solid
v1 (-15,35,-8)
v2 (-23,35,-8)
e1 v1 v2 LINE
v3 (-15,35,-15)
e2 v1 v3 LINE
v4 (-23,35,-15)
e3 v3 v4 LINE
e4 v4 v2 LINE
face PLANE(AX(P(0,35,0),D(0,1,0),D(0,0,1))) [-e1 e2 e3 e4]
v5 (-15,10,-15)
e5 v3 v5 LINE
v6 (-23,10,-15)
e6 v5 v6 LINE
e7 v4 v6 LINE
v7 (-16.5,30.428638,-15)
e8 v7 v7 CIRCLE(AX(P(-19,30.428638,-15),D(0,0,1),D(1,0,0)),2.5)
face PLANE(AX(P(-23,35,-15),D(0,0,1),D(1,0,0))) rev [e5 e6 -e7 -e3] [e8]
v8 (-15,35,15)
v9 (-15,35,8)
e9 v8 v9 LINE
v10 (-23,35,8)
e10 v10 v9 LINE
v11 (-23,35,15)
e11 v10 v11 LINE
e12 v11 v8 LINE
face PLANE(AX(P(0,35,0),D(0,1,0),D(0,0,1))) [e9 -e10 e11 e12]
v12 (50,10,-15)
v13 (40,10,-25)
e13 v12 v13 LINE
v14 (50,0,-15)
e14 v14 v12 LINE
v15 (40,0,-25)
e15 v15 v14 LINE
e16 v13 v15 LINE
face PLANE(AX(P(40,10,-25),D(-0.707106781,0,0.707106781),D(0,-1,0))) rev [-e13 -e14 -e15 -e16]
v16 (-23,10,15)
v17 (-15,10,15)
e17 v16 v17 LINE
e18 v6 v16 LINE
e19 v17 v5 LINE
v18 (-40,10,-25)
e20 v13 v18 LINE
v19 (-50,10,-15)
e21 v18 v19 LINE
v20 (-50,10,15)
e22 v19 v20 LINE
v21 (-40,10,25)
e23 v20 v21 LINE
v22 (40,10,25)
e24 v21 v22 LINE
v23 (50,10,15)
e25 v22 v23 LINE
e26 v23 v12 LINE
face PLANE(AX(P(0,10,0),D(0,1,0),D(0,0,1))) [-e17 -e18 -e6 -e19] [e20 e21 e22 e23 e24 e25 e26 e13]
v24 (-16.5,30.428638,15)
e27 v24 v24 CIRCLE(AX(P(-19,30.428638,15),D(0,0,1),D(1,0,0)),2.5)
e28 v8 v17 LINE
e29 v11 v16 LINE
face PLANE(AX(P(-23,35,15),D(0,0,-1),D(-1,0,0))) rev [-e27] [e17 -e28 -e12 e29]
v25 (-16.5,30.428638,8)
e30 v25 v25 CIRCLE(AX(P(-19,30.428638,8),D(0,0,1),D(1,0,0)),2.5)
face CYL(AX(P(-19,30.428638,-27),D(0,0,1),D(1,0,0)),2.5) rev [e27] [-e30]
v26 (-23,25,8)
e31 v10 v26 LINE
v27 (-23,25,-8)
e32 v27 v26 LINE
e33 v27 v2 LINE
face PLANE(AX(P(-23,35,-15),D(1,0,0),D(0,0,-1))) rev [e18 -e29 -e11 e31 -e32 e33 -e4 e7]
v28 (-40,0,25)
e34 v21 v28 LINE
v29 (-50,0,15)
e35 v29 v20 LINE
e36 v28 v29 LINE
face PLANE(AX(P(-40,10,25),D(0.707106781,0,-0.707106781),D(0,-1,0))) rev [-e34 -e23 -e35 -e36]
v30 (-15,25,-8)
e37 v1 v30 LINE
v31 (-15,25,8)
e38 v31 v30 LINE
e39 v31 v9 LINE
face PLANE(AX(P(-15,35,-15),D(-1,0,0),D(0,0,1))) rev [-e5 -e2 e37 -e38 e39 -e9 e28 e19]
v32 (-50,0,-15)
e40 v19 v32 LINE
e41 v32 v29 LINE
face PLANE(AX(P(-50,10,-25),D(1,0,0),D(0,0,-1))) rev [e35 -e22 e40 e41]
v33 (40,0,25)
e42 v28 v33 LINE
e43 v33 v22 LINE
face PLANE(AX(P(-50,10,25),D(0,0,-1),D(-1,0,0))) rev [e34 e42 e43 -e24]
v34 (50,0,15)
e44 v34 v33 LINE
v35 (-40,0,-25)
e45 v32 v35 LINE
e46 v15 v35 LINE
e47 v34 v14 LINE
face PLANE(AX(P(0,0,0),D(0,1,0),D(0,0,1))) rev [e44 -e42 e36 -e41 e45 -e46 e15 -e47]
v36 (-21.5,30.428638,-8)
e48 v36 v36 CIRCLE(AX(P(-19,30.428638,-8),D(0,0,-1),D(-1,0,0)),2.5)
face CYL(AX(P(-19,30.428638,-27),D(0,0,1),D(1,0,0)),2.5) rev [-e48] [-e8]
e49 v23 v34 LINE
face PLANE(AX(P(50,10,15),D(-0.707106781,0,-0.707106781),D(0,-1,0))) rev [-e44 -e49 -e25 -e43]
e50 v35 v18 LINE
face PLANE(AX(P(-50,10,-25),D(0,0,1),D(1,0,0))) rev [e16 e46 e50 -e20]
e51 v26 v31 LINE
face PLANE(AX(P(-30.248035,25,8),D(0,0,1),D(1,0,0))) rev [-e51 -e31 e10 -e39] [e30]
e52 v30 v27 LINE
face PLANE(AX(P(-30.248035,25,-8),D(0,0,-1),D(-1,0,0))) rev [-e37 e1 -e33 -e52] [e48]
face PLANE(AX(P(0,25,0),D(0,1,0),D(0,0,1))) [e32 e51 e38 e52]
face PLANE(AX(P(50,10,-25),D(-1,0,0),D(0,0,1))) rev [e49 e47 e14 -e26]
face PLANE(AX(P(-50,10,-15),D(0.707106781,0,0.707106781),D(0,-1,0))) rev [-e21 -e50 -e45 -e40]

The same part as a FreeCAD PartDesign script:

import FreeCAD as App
import Part
import Sketcher
from FreeCAD import Vector
Q = App.Units.Quantity


def edges_at(feature, points):
    """Names of the edges that pass closest to the given points."""
    edges = feature.Shape.Edges
    near = lambda p: min(range(len(edges)), key=lambda i: edges[i].distToShape(Part.Vertex(*p))[0])
    return sorted({f"Edge{near(p) + 1}" for p in points})

doc = App.newDocument("Part")
body = doc.addObject("PartDesign::Body", "Body")

# Sketch on XZ plane
sketch1 = body.newObject("Sketcher::SketchObject", "Sketch")
sketch1.AttachmentSupport = (doc.getObject("XZ_Plane"), [""])
sketch1.MapMode = "FlatFace"
sketch1.addGeometry([
    Part.LineSegment(Vector(-50, -25, 0), Vector(-50, 25, 0)),
    Part.LineSegment(Vector(-50, 25, 0), Vector(50, 25, 0)),
    Part.LineSegment(Vector(50, 25, 0), Vector(50, -25, 0)),
    Part.LineSegment(Vector(50, -25, 0), Vector(-50, -25, 0)),
], False)
sketch1.addConstraint([
    Sketcher.Constraint("Coincident", 0, 2, 1, 1),
    Sketcher.Constraint("Coincident", 1, 2, 2, 1),
    Sketcher.Constraint("Coincident", 2, 2, 3, 1),
    Sketcher.Constraint("Coincident", 3, 2, 0, 1),
    Sketcher.Constraint("Vertical", 0),
    Sketcher.Constraint("Horizontal", 1),
    Sketcher.Constraint("Vertical", 2),
    Sketcher.Constraint("Horizontal", 3),
    Sketcher.Constraint("Symmetric", 0, 2, 2, 2, -1, 1),
    Sketcher.Constraint("DistanceX", 1, 1, 1, 2, Q("100 mm")),
    Sketcher.Constraint("DistanceY", 0, 1, 0, 2, Q("50 mm")),
])
pad1 = body.newObject("PartDesign::Pad", "Pad")
pad1.Profile = sketch1
pad1.Length = 10
pad1.Reversed = True
doc.recompute()

chamfer = body.newObject("PartDesign::Chamfer", "Chamfer")
chamfer.Base = (pad1, edges_at(pad1, [
    (-50, 5, -25),
    (50, 5, -25),
    (50, 5, 25),
    (-50, 5, 25),
]))
chamfer.Size = 10

# Sketch on XZ plane
sketch2 = body.newObject("Sketcher::SketchObject", "Sketch001")
sketch2.AttachmentSupport = (doc.getObject("XZ_Plane"), [""])
sketch2.MapMode = "FlatFace"
sketch2.AttachmentOffset = App.Placement(Vector(0, 0, -10), App.Rotation())
sketch2.addGeometry([
    Part.LineSegment(Vector(-23, -15, 0), Vector(-23, 15, 0)),
    Part.LineSegment(Vector(-23, 15, 0), Vector(-15, 15, 0)),
    Part.LineSegment(Vector(-15, 15, 0), Vector(-15, -15, 0)),
    Part.LineSegment(Vector(-15, -15, 0), Vector(-23, -15, 0)),
], False)
sketch2.addConstraint([
    Sketcher.Constraint("Coincident", 0, 2, 1, 1),
    Sketcher.Constraint("Coincident", 1, 2, 2, 1),
    Sketcher.Constraint("Coincident", 2, 2, 3, 1),
    Sketcher.Constraint("Coincident", 3, 2, 0, 1),
    Sketcher.Constraint("Vertical", 0),
    Sketcher.Constraint("Horizontal", 1),
    Sketcher.Constraint("Vertical", 2),
    Sketcher.Constraint("Horizontal", 3),
    Sketcher.Constraint("DistanceX", 1, 1, 1, 2, Q("8 mm")),
    Sketcher.Constraint("DistanceY", 0, 1, 0, 2, Q("30 mm")),
    Sketcher.Constraint("DistanceX", 0, 2, -1, 1, Q("23 mm")),
    Sketcher.Constraint("DistanceY", -1, 1, 0, 2, Q("15 mm")),
])
pad2 = body.newObject("PartDesign::Pad", "Pad001")
pad2.Profile = sketch2
pad2.Length = 25
pad2.Reversed = True

# Sketch on XZ plane
sketch3 = body.newObject("Sketcher::SketchObject", "Sketch002")
sketch3.AttachmentSupport = (doc.getObject("XZ_Plane"), [""])
sketch3.MapMode = "FlatFace"
sketch3.AttachmentOffset = App.Placement(Vector(0, 0, -35), App.Rotation())
sketch3.addGeometry([
    Part.LineSegment(Vector(-30.248035, -8, 0), Vector(-30.248035, 8, 0)),
    Part.LineSegment(Vector(-30.248035, 8, 0), Vector(-5.922692, 8, 0)),
    Part.LineSegment(Vector(-5.922692, 8, 0), Vector(-5.922692, -8, 0)),
    Part.LineSegment(Vector(-5.922692, -8, 0), Vector(-30.248035, -8, 0)),
], False)
sketch3.addConstraint([
    Sketcher.Constraint("Coincident", 0, 2, 1, 1),
    Sketcher.Constraint("Coincident", 1, 2, 2, 1),
    Sketcher.Constraint("Coincident", 2, 2, 3, 1),
    Sketcher.Constraint("Coincident", 3, 2, 0, 1),
    Sketcher.Constraint("Vertical", 0),
    Sketcher.Constraint("Horizontal", 1),
    Sketcher.Constraint("Vertical", 2),
    Sketcher.Constraint("Horizontal", 3),
    Sketcher.Constraint("DistanceY", 0, 1, 0, 2, Q("16 mm")),
    Sketcher.Constraint("DistanceY", -1, 1, 0, 2, Q("8 mm")),
    Sketcher.Constraint("DistanceX", 1, 1, 1, 2, Q("24.325343 mm")),
    Sketcher.Constraint("DistanceX", 0, 2, -1, 1, Q("30.248035 mm")),
])
pocket1 = body.newObject("PartDesign::Pocket", "Pocket")
pocket1.Profile = sketch3
pocket1.Length = 10
pocket1.Reversed = True

# Sketch on XY plane
sketch4 = body.newObject("Sketcher::SketchObject", "Sketch003")
sketch4.AttachmentSupport = (doc.getObject("XY_Plane"), [""])
sketch4.MapMode = "FlatFace"
sketch4.AttachmentOffset = App.Placement(Vector(0, 0, 15), App.Rotation())
sketch4.addGeometry(Part.Circle(Vector(-19, 30.428638, 0), Vector(0, 0, 1), 2.5), False)
sketch4.addConstraint([
    Sketcher.Constraint("Diameter", 0, Q("5 mm")),
    Sketcher.Constraint("DistanceX", 0, 3, -1, 1, Q("19 mm")),
    Sketcher.Constraint("DistanceY", -1, 1, 0, 3, Q("30.428638 mm")),
])
pocket2 = body.newObject("PartDesign::Pocket", "Pocket001")
pocket2.Profile = sketch4
pocket2.Length = 42

doc.recompute()
